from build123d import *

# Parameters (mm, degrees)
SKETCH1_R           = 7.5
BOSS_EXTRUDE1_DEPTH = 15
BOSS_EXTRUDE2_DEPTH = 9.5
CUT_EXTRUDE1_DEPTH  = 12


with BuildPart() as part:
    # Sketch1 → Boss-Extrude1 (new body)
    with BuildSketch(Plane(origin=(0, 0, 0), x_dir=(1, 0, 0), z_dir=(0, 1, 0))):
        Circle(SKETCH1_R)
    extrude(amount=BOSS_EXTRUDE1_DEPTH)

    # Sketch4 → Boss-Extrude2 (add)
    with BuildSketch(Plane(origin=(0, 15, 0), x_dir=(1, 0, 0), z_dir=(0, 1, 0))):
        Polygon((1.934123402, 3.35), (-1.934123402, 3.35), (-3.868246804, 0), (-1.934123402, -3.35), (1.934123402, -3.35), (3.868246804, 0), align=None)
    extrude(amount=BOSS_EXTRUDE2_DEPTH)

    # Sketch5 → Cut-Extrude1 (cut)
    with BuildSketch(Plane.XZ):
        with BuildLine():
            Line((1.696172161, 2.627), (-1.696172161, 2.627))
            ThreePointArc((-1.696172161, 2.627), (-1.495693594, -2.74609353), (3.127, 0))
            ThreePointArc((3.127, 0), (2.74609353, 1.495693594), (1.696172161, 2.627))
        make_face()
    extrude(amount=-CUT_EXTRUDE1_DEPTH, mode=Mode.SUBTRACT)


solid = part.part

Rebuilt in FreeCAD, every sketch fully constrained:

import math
import FreeCAD as App
import Part
import Sketcher
from FreeCAD import Vector
Q = App.Units.Quantity

doc = App.newDocument("Part")
body = doc.addObject("PartDesign::Body", "Body")

# Sketch on XZ plane
sketch1 = body.newObject("Sketcher::SketchObject", "Sketch")
sketch1.AttachmentSupport = (doc.getObject("XZ_Plane"), [""])
sketch1.MapMode = "FlatFace"
sketch1.addGeometry(Part.Circle(Vector(0, 0, 0), Vector(0, 0, 1), 8), False)
sketch1.addConstraint([
    Sketcher.Constraint("Coincident", 0, 3, -1, 1),
    Sketcher.Constraint("Diameter", 0, 15.0),
])
pad1 = body.newObject("PartDesign::Pad", "Pad")
pad1.Profile = sketch1
pad1.Length = 15
pad1.Reversed = True

# Sketch on XZ plane
sketch2 = body.newObject("Sketcher::SketchObject", "Sketch001")
sketch2.AttachmentSupport = (doc.getObject("XZ_Plane"), [""])
sketch2.MapMode = "FlatFace"
sketch2.AttachmentOffset = App.Placement(Vector(0, 0, -15), App.Rotation())
sketch2.addGeometry([
    Part.LineSegment(Vector(1.9, -3.4, 0), Vector(-1.9, -3.4, 0)),  # 0
    Part.LineSegment(Vector(-1.9, -3.4, 0), Vector(-3.9, 0, 0)),  # 1
    Part.LineSegment(Vector(-3.9, 0, 0), Vector(-1.9, 3.4, 0)),  # 2
    Part.LineSegment(Vector(-1.9, 3.4, 0), Vector(1.9, 3.4, 0)),  # 3
    Part.LineSegment(Vector(1.9, 3.4, 0), Vector(3.9, 0, 0)),  # 4
    Part.LineSegment(Vector(3.9, 0, 0), Vector(1.9, -3.4, 0)),  # 5
], False)
sketch2.addConstraint([
    Sketcher.Constraint("Coincident", 0, 2, 1, 1),
    Sketcher.Constraint("Coincident", 1, 2, 2, 1),
    Sketcher.Constraint("Coincident", 2, 2, 3, 1),
    Sketcher.Constraint("Coincident", 3, 2, 4, 1),
    Sketcher.Constraint("Coincident", 4, 2, 5, 1),
    Sketcher.Constraint("Coincident", 5, 2, 0, 1),
    Sketcher.Constraint("Horizontal", 0),
    Sketcher.Constraint("Horizontal", 3),
    Sketcher.Constraint("Symmetric", 0, 2, 3, 2, -1, 1),
    Sketcher.Constraint("Symmetric", 1, 2, 4, 2, -1, 1),
    Sketcher.Constraint("PointOnObject", 1, 2, -1),
    Sketcher.Constraint("Parallel", 2, 5),
    Sketcher.Constraint("Vertical", 0, 2, 2, 2),
    Sketcher.Constraint("Angle", 1, Q("120 deg")),
    Sketcher.Constraint("DistanceY", 0, 2, 2, 2, 6.7),
    Sketcher.Constraint("DistanceX", 0, 2, 0, 1, 3.868247),
])
pad2 = body.newObject("PartDesign::Pad", "Pad001")
pad2.Profile = sketch2
pad2.Length = 9.5
pad2.Reversed = True

# Sketch on XZ plane
sketch3 = body.newObject("Sketcher::SketchObject", "Sketch002")
sketch3.AttachmentSupport = (doc.getObject("XZ_Plane"), [""])
sketch3.MapMode = "FlatFace"
sketch3.addGeometry([
    Part.LineSegment(Vector(1.7, 2.6, 0), Vector(-1.7, 2.6, 0)),
    Part.ArcOfCircle(Part.Circle(Vector(0, 0, 0), Vector(0, 0, 1), 3.1), math.radians(123), math.radians(360)),
    Part.ArcOfCircle(Part.Circle(Vector(0, 0, 0), Vector(0, 0, 1), 3.1), math.radians(0), math.radians(57)),
], False)
sketch3.addConstraint([
    Sketcher.Constraint("Coincident", 0, 2, 1, 1),
    Sketcher.Constraint("Tangent", 1, 2, 2, 1),
    Sketcher.Constraint("Coincident", 2, 2, 0, 1),
    Sketcher.Constraint("Horizontal", 0),
    Sketcher.Constraint("Coincident", 1, 3, -1, 1),
    Sketcher.Constraint("Equal", 1, 2),
    Sketcher.Constraint("PointOnObject", 1, 2, -1),
    Sketcher.Constraint("Radius", 1, 3.127),
    Sketcher.Constraint("DistanceY", -1, 1, 0, 2, 2.627),
])
pocket1 = body.newObject("PartDesign::Pocket", "Pocket")
pocket1.Profile = sketch3
pocket1.Length = 12

doc.recompute()
